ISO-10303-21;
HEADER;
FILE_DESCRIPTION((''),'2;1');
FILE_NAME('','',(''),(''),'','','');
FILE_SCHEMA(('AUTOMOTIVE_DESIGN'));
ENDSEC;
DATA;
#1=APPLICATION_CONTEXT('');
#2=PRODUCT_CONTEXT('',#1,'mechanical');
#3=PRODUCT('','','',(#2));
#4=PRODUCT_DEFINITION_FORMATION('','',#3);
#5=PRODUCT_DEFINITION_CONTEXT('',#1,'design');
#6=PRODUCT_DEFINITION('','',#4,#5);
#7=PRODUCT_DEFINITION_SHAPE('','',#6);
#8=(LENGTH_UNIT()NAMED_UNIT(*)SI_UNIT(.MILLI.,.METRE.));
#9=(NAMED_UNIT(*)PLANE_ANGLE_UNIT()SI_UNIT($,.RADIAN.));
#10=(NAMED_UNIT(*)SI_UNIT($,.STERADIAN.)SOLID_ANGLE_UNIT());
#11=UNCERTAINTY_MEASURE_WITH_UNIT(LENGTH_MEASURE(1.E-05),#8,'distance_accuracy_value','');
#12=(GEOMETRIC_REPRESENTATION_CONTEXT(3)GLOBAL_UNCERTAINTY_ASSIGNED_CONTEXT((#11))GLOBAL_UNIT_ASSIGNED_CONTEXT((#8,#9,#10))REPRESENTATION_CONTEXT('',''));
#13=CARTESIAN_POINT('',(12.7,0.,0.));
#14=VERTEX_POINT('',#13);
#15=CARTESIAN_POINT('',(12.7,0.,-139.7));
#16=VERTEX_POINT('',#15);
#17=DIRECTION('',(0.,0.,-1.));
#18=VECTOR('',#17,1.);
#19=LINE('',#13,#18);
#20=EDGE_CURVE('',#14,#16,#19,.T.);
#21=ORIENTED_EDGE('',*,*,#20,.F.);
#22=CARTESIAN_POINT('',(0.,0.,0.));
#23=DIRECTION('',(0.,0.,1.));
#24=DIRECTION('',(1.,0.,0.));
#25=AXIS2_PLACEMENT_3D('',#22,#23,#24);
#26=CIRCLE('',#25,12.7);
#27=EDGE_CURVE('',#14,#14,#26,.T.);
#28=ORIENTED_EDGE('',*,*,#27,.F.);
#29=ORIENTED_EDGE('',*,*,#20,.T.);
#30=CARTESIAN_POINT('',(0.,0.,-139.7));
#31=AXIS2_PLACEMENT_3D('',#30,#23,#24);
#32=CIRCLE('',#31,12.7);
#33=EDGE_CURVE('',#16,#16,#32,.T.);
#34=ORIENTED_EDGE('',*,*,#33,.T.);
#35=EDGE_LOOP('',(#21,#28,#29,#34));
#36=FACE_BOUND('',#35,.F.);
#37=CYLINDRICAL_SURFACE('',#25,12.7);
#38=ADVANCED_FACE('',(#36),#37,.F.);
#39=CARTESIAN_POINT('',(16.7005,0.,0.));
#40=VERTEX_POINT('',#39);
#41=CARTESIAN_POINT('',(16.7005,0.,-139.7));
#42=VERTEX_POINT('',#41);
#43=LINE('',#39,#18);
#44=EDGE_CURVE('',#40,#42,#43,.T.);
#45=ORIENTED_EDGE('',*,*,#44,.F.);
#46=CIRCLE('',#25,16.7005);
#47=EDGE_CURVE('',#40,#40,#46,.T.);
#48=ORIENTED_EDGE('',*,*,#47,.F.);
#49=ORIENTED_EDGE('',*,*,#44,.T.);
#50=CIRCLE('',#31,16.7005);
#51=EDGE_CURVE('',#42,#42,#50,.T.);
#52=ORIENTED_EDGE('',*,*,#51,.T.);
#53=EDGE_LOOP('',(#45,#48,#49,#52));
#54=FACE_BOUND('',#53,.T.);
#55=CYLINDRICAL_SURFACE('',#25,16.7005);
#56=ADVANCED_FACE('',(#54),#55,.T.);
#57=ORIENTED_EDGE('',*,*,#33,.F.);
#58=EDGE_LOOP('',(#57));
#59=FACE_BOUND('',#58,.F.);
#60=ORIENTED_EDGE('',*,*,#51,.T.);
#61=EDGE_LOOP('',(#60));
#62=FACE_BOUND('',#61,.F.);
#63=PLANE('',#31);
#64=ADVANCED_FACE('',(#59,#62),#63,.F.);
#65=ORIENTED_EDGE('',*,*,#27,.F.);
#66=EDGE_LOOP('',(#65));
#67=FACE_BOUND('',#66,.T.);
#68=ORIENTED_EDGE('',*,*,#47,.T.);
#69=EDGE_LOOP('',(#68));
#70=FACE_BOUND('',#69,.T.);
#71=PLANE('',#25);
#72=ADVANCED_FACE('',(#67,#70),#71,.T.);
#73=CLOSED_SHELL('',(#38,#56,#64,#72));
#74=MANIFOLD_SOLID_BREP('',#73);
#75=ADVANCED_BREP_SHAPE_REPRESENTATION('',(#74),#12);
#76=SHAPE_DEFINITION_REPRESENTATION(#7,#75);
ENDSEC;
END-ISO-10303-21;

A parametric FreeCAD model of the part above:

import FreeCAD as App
import Part
import Sketcher
from FreeCAD import Vector
Q = App.Units.Quantity

doc = App.newDocument("Part")
body = doc.addObject("PartDesign::Body", "Body")

sketch1 = body.newObject("Sketcher::SketchObject", "Sketch")
sketch1.AttachmentSupport = (doc.getObject("XY_Plane"), [""])
sketch1.MapMode = "FlatFace"
sketch1.addGeometry(Part.Circle(Vector(0, 0, 0), Vector(0, 0, 1), 17), False)
sketch1.addGeometry(Part.Circle(Vector(0, 0, 0), Vector(0, 0, 1), 13), False)
sketch1.addConstraint(Sketcher.Constraint("Coincident", 0, 3, -1, 1))
sketch1.addConstraint(Sketcher.Constraint("Coincident", 1, 3, -1, 1))
sketch1.addConstraint(Sketcher.Constraint("Diameter", 1, Q("1 in")))
sketch1.addConstraint(Sketcher.Constraint("Diameter", 0, Q("1.315 in")))
pad1 = body.newObject("PartDesign::Pad", "Pad")
pad1.Profile = sketch1
pad1.Length = Q("5.5 in")
pad1.Reversed = True

doc.recompute()
